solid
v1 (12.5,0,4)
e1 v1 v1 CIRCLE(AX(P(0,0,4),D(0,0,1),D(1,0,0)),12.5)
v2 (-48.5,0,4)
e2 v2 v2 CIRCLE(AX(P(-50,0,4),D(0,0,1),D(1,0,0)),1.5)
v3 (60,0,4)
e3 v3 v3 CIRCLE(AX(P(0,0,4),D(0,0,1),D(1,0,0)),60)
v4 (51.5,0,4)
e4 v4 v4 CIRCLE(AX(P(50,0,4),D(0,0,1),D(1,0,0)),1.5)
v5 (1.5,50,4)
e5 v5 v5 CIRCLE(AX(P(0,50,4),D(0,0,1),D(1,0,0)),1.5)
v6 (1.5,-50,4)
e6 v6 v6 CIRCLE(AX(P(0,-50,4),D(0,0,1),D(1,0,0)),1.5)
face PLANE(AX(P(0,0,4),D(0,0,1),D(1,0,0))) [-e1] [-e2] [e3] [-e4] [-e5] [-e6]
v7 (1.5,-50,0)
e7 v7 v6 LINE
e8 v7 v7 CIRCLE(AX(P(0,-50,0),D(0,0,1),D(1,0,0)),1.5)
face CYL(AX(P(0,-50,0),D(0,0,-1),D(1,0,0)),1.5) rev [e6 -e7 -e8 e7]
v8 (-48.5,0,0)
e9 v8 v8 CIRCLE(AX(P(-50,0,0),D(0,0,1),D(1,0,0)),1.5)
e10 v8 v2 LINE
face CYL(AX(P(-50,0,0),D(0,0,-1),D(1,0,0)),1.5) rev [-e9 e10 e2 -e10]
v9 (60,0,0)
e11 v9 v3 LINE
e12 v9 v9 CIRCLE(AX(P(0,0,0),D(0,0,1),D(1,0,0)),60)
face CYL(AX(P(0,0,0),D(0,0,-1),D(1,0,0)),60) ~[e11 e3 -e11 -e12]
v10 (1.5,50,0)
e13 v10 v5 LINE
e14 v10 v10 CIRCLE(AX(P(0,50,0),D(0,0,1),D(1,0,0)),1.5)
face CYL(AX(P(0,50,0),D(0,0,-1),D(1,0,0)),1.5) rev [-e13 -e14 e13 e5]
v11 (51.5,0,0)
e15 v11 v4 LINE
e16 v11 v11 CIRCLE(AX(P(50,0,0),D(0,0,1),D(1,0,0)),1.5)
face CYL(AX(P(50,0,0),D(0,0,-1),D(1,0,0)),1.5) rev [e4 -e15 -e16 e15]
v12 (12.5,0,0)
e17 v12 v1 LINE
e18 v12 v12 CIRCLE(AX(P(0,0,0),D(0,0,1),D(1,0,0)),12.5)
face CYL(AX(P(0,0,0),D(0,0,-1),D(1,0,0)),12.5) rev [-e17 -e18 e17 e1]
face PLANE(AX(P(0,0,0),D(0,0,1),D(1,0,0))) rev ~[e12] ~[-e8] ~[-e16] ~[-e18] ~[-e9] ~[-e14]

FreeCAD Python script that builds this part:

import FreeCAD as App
import Part
import Sketcher

doc = App.newDocument("Part")
body = doc.addObject("PartDesign::Body", "Body")

# Sketch on XY plane
sketch1 = body.newObject("Sketcher::SketchObject", "Sketch")
sketch1.AttachmentSupport = (doc.getObject("XY_Plane"), [""])
sketch1.MapMode = "FlatFace"
sketch1.addGeometry([
    Part.Circle(App.Vector(0, 0, 0), App.Vector(0, 0, 1), 60),  # 0
    Part.Circle(App.Vector(0, -50, 0), App.Vector(0, 0, 1), 1.5),  # 1
    Part.Circle(App.Vector(-50, 0, 0), App.Vector(0, 0, 1), 1.5),  # 2
    Part.Circle(App.Vector(0, 0, 0), App.Vector(0, 0, 1), 12.5),  # 3
    Part.Circle(App.Vector(50, 0, 0), App.Vector(0, 0, 1), 1.5),  # 4
    Part.Circle(App.Vector(0, 50, 0), App.Vector(0, 0, 1), 1.5),  # 5
], False)
sketch1.addConstraint([
    Sketcher.Constraint("Coincident", 0, 3, -1, 1),
    Sketcher.Constraint("Coincident", 3, 3, -1, 1),
    Sketcher.Constraint("Equal", 1, 2),
    Sketcher.Constraint("Equal", 2, 4),
    Sketcher.Constraint("Equal", 4, 5),
    Sketcher.Constraint("Symmetric", 2, 3, 4, 3, -1, 1),
    Sketcher.Constraint("Symmetric", 1, 3, 5, 3, -1, 1),
    Sketcher.Constraint("PointOnObject", 1, 3, -2),
    Sketcher.Constraint("PointOnObject", 2, 3, -1),
    Sketcher.Constraint("Diameter", 0, 120.0),
    Sketcher.Constraint("Diameter", 1, 3.0),
    Sketcher.Constraint("Diameter", 3, 25.0),
    Sketcher.Constraint("DistanceY", 1, 3, -1, 1, 50.0),
    Sketcher.Constraint("DistanceX", 2, 3, -1, 1, 50.0),
])
pad1 = body.newObject("PartDesign::Pad", "Pad")
pad1.Profile = sketch1
pad1.Length = 4

doc.recompute()
